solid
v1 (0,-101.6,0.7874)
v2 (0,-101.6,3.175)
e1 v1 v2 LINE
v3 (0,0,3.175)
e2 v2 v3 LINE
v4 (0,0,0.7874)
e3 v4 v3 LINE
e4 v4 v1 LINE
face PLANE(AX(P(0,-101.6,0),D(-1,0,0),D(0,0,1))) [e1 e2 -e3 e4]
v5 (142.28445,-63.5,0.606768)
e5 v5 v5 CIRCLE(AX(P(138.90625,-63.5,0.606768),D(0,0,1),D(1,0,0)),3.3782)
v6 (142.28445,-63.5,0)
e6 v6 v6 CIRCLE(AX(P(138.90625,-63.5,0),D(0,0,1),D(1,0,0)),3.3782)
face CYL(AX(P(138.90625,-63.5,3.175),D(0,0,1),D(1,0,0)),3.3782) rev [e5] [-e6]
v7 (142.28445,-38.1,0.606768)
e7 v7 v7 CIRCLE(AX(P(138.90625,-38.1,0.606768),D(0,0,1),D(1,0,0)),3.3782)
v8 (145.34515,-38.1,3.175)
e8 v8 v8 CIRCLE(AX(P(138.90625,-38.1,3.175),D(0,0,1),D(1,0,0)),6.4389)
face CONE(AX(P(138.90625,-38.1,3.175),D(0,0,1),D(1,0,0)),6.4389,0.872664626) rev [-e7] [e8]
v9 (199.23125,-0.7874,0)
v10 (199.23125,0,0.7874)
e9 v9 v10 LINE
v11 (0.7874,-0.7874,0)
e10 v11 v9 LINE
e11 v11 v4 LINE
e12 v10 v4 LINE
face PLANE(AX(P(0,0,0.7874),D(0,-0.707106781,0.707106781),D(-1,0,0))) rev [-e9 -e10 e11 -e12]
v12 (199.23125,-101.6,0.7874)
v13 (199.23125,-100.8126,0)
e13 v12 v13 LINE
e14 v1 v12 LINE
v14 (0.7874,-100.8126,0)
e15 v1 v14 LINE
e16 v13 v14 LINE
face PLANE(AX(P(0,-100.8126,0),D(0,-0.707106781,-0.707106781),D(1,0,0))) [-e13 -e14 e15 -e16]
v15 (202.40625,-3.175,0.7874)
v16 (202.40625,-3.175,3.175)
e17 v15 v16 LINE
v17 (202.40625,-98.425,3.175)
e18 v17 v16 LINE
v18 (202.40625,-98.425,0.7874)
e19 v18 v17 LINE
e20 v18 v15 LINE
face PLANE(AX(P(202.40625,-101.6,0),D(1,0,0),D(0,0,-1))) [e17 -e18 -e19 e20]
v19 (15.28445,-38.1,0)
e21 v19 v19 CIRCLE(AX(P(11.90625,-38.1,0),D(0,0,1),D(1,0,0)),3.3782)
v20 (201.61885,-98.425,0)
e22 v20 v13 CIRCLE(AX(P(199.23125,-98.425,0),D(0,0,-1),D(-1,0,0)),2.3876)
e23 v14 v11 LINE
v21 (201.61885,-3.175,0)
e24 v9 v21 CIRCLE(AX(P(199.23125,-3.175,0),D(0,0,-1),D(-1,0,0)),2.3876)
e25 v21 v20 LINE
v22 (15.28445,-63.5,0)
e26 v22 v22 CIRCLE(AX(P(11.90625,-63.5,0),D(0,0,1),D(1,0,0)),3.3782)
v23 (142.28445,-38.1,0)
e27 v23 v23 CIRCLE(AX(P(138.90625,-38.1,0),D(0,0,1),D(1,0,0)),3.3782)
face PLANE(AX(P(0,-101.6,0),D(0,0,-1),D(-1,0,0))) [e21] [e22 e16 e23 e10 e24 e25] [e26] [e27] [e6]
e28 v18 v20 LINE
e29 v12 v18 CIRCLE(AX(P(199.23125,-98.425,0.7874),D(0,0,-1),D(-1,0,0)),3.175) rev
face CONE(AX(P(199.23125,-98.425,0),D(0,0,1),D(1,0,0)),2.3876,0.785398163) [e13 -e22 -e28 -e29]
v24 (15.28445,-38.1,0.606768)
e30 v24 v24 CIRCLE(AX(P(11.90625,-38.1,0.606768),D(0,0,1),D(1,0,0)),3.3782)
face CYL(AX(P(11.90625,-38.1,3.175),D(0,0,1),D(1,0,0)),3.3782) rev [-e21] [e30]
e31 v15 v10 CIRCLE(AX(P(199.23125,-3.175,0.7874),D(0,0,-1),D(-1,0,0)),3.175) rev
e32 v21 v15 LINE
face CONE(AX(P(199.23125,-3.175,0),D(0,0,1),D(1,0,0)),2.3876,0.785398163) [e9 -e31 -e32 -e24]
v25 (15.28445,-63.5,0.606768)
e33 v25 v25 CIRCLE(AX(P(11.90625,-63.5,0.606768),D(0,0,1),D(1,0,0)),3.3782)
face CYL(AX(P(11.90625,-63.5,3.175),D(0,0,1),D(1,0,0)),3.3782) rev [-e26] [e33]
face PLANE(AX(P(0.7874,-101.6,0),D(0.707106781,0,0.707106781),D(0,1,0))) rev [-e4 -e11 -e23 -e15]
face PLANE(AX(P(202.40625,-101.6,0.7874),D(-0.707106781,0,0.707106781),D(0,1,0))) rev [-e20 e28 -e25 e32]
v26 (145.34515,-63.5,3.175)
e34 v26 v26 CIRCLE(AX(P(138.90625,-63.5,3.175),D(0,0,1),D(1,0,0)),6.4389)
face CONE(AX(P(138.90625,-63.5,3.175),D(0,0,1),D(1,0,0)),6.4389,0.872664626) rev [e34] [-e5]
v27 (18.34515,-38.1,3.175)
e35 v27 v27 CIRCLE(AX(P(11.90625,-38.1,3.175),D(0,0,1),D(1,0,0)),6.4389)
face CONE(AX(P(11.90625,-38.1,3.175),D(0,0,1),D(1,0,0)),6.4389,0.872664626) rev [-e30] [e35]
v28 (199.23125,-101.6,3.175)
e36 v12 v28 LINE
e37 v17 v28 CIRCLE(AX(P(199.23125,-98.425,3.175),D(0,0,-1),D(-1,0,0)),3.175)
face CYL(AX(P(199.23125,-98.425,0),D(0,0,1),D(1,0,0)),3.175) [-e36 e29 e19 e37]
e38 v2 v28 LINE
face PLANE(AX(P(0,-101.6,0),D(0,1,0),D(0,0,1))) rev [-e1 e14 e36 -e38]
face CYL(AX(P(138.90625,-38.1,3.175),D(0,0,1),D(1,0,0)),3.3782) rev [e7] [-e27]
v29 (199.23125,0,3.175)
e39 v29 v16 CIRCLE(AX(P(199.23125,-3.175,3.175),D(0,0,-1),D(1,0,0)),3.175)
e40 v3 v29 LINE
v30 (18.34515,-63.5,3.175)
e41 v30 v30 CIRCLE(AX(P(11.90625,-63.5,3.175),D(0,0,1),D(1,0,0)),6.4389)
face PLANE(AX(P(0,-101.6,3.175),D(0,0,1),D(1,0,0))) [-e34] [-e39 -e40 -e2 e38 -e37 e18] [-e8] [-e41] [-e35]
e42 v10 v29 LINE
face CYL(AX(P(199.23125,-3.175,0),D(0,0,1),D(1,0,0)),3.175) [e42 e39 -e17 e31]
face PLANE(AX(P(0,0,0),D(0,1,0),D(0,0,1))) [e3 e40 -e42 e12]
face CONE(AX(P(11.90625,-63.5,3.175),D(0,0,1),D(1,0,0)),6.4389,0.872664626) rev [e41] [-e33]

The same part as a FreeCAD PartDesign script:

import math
import FreeCAD as App
import Part
import Sketcher
Q = App.Units.Quantity


def edges_at(feature, points):
    """Names of the edges that pass closest to the given points."""
    edges = feature.Shape.Edges
    near = lambda p: min(range(len(edges)), key=lambda i: edges[i].distToShape(Part.Vertex(*p))[0])
    return sorted({f"Edge{near(p) + 1}" for p in points})


def add_polygon(sketch, points):
    """Adds a closed chain of lines whose ends are joined by coincident constraints."""
    first, n = sketch.GeometryCount, len(points)
    for a, b in zip(points, points[1:] + points[:1]):
        sketch.addGeometry(Part.LineSegment(App.Vector(*a, 0), App.Vector(*b, 0)), False)
    for i in range(n):
        sketch.addConstraint(Sketcher.Constraint("Coincident", first + i, 2, first + (i + 1) % n, 1))

doc = App.newDocument("Part")
body = doc.addObject("PartDesign::Body", "Body")

# Sketch on XZ plane
sketch1 = doc.addObject("Sketcher::SketchObject", "Sketch")
body.addObject(sketch1)
sketch1.AttachmentSupport = (doc.XZ_Plane, [""])
sketch1.MapMode = "FlatFace"
add_polygon(sketch1, [(0, 0), (0, 3.175), (202.40625, 3.175), (202.40625, 0)])  # lines 0-3
sketch1.addConstraint(Sketcher.Constraint("Vertical", 0))
sketch1.addConstraint(Sketcher.Constraint("Horizontal", 1))
sketch1.addConstraint(Sketcher.Constraint("Vertical", 2))
sketch1.addConstraint(Sketcher.Constraint("Horizontal", 3))
sketch1.addConstraint(Sketcher.Constraint("Coincident", 3, 2, -1, 1))
sketch1.addConstraint(Sketcher.Constraint("DistanceX", 1, 1, 1, 2, Q("7.96875 in")))
sketch1.addConstraint(Sketcher.Constraint("DistanceY", 0, 1, 0, 2, Q("0.125 in")))
pad1 = doc.addObject("PartDesign::Pad", "Pad")
body.addObject(pad1)
pad1.Profile = sketch1
pad1.Length = Q("4 in")

# Sketch on YZ plane
sketch2 = doc.addObject("Sketcher::SketchObject", "Sketch001")
body.addObject(sketch2)
sketch2.AttachmentSupport = (doc.YZ_Plane, [""])
sketch2.MapMode = "FlatFace"
sketch2.AttachmentOffset = App.Placement(App.Vector(0, 0, 0.46875 * 25.4), App.Rotation())
add_polygon(sketch2, [(-38.1, 0), (-38.1, 3.175), (-44.5389, 3.175), (-41.4782, 0.606768), (-41.4782, 0)])  # lines 0-4
sketch2.addGeometry(Part.LineSegment(App.Vector(-38.1, 3.175, 0), App.Vector(-38.1, 0, 0)), True)  # axis
sketch2.addConstraint(Sketcher.Constraint("Vertical", 0))
sketch2.addConstraint(Sketcher.Constraint("Horizontal", 1))
sketch2.addConstraint(Sketcher.Constraint("Vertical", 3))
sketch2.addConstraint(Sketcher.Constraint("Horizontal", 4))
sketch2.addConstraint(Sketcher.Constraint("Vertical", 5))
sketch2.addConstraint(Sketcher.Constraint("Coincident", 5, 1, 0, 2))
sketch2.addConstraint(Sketcher.Constraint("PointOnObject", 3, 2, -1))
sketch2.addConstraint(Sketcher.Constraint("PointOnObject", 5, 2, -1))
sketch2.addConstraint(Sketcher.Constraint("Angle", 2, Q("-40 deg")))
sketch2.addConstraint(Sketcher.Constraint("DistanceX", 0, 2, -1, 1, Q("1.5 in")))
sketch2.addConstraint(Sketcher.Constraint("DistanceX", 4, 1, 4, 2, Q("0.133 in")))
sketch2.addConstraint(Sketcher.Constraint("DistanceY", 0, 1, 0, 2, Q("0.125 in")))
sketch2.addConstraint(Sketcher.Constraint("DistanceX", 1, 2, 1, 1, Q("0.2535 in")))
groove = doc.addObject("PartDesign::Groove", "Groove")
body.addObject(groove)
groove.Profile = sketch2
groove.ReferenceAxis = (sketch2, ["Axis0"])
groove.Angle = 360
doc.recompute()

linearpattern = doc.addObject("PartDesign::LinearPattern", "LinearPattern")
body.addObject(linearpattern)
linearpattern.Originals = [groove]
linearpattern.Direction = (doc.Y_Axis, [""])
linearpattern.Mode = "offset"
linearpattern.Offset = Q("1 in")
linearpattern.Occurrences = 2
linearpattern.Reversed = True
body.Tip = linearpattern
doc.recompute()

datumline = doc.addObject("PartDesign::Line", "DatumLine")
body.addObject(datumline)
datumline.Placement = App.Placement(App.Vector(0, 0, 0), App.Rotation(App.Vector(0, 0, 1), App.Vector(0.980580676, -0.196116135, 0)))
linearpattern2 = doc.addObject("PartDesign::LinearPattern", "LinearPattern001")
body.addObject(linearpattern2)
linearpattern2.Originals = [groove]
linearpattern2.Direction = (datumline, [""])
linearpattern2.Mode = "offset"
linearpattern2.Offset = 129.515096
linearpattern2.Occurrences = 2
body.Tip = linearpattern2
doc.recompute()

linearpattern3 = doc.addObject("PartDesign::LinearPattern", "LinearPattern002")
body.addObject(linearpattern3)
linearpattern3.Originals = [groove]
linearpattern3.Direction = (doc.X_Axis, [""])
linearpattern3.Mode = "offset"
linearpattern3.Offset = Q("5 in")
linearpattern3.Occurrences = 2
body.Tip = linearpattern3

# Sketch on XY plane
sketch3 = doc.addObject("Sketcher::SketchObject", "Sketch002")
body.addObject(sketch3)
sketch3.AttachmentSupport = (doc.XY_Plane, [""])
sketch3.MapMode = "FlatFace"
sketch3.AttachmentOffset = App.Placement(App.Vector(0, 0, 0.125 * 25.4), App.Rotation())
sketch3.addGeometry(Part.LineSegment(App.Vector(202.40625, -3.175, 0), App.Vector(202.40625, 0, 0)), False)
sketch3.addGeometry(Part.LineSegment(App.Vector(202.40625, 0, 0), App.Vector(199.23125, 0, 0)), False)
sketch3.addGeometry(Part.ArcOfCircle(Part.Circle(App.Vector(199.23125, -3.175, 0), App.Vector(0, 0, 1), 3.175), math.radians(0), math.radians(90)), False)
sketch3.addGeometry(Part.LineSegment(App.Vector(202.40625, -101.6, 0), App.Vector(202.40625, -98.425, 0)), False)
sketch3.addGeometry(Part.ArcOfCircle(Part.Circle(App.Vector(199.23125, -98.425, 0), App.Vector(0, 0, 1), 3.175), math.radians(-90), math.radians(0)), False)
sketch3.addGeometry(Part.LineSegment(App.Vector(199.23125, -101.6, 0), App.Vector(202.40625, -101.6, 0)), False)
sketch3.addConstraint(Sketcher.Constraint("Coincident", 0, 2, 1, 1))
sketch3.addConstraint(Sketcher.Constraint("Tangent", 1, 2, 2, 2))
sketch3.addConstraint(Sketcher.Constraint("Tangent", 2, 1, 0, 1))
sketch3.addConstraint(Sketcher.Constraint("Tangent", 3, 2, 4, 2))
sketch3.addConstraint(Sketcher.Constraint("Tangent", 4, 1, 5, 1))
sketch3.addConstraint(Sketcher.Constraint("Coincident", 5, 2, 3, 1))
sketch3.addConstraint(Sketcher.Constraint("Vertical", 0))
sketch3.addConstraint(Sketcher.Constraint("Horizontal", 1))
sketch3.addConstraint(Sketcher.Constraint("Vertical", 3))
sketch3.addConstraint(Sketcher.Constraint("Horizontal", 5))
sketch3.addConstraint(Sketcher.Constraint("Equal", 2, 4))
sketch3.addConstraint(Sketcher.Constraint("PointOnObject", 0, 2, -1))
sketch3.addConstraint(Sketcher.Constraint("Vertical", 2, 3, 4, 3))
sketch3.addConstraint(Sketcher.Constraint("DistanceY", 4, 1, -1, 1, Q("4 in")))
sketch3.addConstraint(Sketcher.Constraint("Radius", 2, Q("0.125 in")))
sketch3.addConstraint(Sketcher.Constraint("DistanceX", -1, 1, 2, 3, Q("7.84375 in")))
pocket1 = doc.addObject("PartDesign::Pocket", "Pocket")
body.addObject(pocket1)
pocket1.Profile = sketch3
pocket1.Type = "ThroughAll"
doc.recompute()

chamfer = doc.addObject("PartDesign::Chamfer", "Chamfer")
body.addObject(chamfer)
chamfer.Base = (pocket1, edges_at(pocket1, [
    (99.616, 0, 0),
    (99.616, -101.6, 0),
    (202.406, -50.8, 0),
    (201.476, -0.93, 0),
    (201.476, -100.67, 0),
    (0, -50.8, 0),
]))
chamfer.Size = Q("0.031 in")

doc.recompute()
